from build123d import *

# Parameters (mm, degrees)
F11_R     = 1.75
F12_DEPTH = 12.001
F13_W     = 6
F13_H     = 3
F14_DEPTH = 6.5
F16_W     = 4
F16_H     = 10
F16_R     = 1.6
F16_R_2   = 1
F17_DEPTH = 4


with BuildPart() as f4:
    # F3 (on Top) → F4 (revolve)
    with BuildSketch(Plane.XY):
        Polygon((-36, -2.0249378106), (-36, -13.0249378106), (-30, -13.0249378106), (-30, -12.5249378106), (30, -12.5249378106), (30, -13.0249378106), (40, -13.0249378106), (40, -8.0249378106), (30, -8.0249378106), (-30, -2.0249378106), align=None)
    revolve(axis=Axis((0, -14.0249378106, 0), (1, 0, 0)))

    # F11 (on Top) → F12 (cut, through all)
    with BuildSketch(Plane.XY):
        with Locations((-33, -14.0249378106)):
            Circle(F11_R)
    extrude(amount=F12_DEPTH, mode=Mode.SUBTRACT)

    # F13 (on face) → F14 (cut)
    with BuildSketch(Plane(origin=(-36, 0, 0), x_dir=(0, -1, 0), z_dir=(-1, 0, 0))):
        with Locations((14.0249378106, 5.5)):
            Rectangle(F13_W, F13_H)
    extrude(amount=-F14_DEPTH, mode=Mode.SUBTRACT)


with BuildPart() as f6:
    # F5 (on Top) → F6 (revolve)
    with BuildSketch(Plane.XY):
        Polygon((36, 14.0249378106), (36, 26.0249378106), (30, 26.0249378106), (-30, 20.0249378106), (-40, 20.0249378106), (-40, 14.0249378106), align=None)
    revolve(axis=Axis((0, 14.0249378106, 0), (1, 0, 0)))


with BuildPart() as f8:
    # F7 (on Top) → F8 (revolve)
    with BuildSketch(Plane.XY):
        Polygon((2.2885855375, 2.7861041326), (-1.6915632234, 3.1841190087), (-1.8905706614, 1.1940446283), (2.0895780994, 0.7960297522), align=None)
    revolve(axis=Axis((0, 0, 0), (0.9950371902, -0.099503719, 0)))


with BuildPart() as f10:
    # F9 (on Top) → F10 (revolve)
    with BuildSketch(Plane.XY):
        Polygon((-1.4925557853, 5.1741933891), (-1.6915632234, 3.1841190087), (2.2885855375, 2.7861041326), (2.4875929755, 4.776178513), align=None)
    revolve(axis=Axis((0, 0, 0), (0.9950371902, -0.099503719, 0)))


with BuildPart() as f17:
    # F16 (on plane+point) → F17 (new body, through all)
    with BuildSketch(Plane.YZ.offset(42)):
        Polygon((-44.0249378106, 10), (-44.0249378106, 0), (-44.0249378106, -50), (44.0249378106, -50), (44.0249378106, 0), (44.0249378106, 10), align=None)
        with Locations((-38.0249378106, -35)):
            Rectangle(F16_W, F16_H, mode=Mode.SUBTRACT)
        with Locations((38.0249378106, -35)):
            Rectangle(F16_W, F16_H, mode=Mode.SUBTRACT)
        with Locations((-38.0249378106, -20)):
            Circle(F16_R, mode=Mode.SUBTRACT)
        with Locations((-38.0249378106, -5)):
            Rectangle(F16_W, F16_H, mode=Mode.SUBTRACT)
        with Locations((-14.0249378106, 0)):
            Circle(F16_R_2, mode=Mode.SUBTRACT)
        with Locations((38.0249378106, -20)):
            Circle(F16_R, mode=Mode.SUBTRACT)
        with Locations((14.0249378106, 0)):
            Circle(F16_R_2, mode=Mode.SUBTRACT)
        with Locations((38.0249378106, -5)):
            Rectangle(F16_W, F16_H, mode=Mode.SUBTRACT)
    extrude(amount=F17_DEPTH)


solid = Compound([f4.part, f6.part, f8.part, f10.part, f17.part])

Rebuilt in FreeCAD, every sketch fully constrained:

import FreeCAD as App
import Part
import Sketcher

V = App.Vector


def add_polygon(sketch, points):
    """Adds a closed chain of lines whose ends are joined by coincident constraints."""
    first, n = sketch.GeometryCount, len(points)
    for a, b in zip(points, points[1:] + points[:1]):
        sketch.addGeometry(Part.LineSegment(App.Vector(*a, 0), App.Vector(*b, 0)), False)
    for i in range(n):
        sketch.addConstraint(Sketcher.Constraint("Coincident", first + i, 2, first + (i + 1) % n, 1))

doc = App.newDocument("Part")
body = doc.addObject("PartDesign::Body", "Body")

sketch1 = body.newObject("Sketcher::SketchObject", "Sketch")
sketch1.AttachmentSupport = (doc.getObject("XY_Plane"), [""])
sketch1.MapMode = "FlatFace"
add_polygon(sketch1, [(-36, -2), (-36, -13), (-30, -13), (-30, -12.5), (30, -12.5), (30, -13), (40, -13), (40, -8), (30, -8), (-30, -2)])
sketch1.addGeometry(Part.LineSegment(V(-36, -14, 0), V(40, -14, 0)), True)
sketch1.addConstraint([
    Sketcher.Constraint("Vertical", 0),
    Sketcher.Constraint("Horizontal", 1),
    Sketcher.Constraint("Vertical", 2),
    Sketcher.Constraint("Horizontal", 3),
    Sketcher.Constraint("Vertical", 4),
    Sketcher.Constraint("Horizontal", 5),
    Sketcher.Constraint("Vertical", 6),
    Sketcher.Constraint("Horizontal", 7),
    Sketcher.Constraint("Horizontal", 9),
    Sketcher.Constraint("Horizontal", 10),
    Sketcher.Constraint("Symmetric", 1, 2, 4, 2, -2),
    Sketcher.Constraint("Vertical", 4, 2, 7, 2),
    Sketcher.Constraint("Vertical", 2, 2, 8, 2),
    Sketcher.Constraint("Vertical", 9, 2, 10, 1),
    Sketcher.Constraint("Vertical", 6, 2, 10, 2),
    Sketcher.Constraint("DistanceX", 1, 1, 1, 2, 6.0),
    Sketcher.Constraint("DistanceX", 3, 1, 3, 2, 60.0),
    Sketcher.Constraint("DistanceX", 5, 1, 5, 2, 10.0),
    Sketcher.Constraint("DistanceY", 0, 2, 0, 1, 11.0),
    Sketcher.Constraint("DistanceY", 6, 1, 6, 2, 5.0),
    Sketcher.Constraint("DistanceY", 2, 1, 2, 2, 0.5),
    Sketcher.Constraint("DistanceY", 10, 1, 0, 2, 1.0),
    Sketcher.Constraint("DistanceY", 0, 2, -1, 1, 13.024938),
])
revolution = body.newObject("PartDesign::Revolution", "Revolution")
revolution.Profile = sketch1
revolution.ReferenceAxis = (sketch1, ["Axis0"])
revolution.Angle = 360

sketch2 = body.newObject("Sketcher::SketchObject", "Sketch001")
sketch2.AttachmentSupport = (doc.getObject("XY_Plane"), [""])
sketch2.MapMode = "FlatFace"
sketch2.addGeometry(Part.Circle(V(-33, -14, 0), V(0, 0, 1), 1.8), False)
sketch2.addConstraint([
    Sketcher.Constraint("Diameter", 0, 3.5),
    Sketcher.Constraint("DistanceX", 0, 3, -1, 1, 33.0),
    Sketcher.Constraint("DistanceY", 0, 3, -1, 1, 14.024938),
])
pocket1 = body.newObject("PartDesign::Pocket", "Pocket")
pocket1.Profile = sketch2
pocket1.Type = "ThroughAll"
pocket1.Reversed = True

sketch3 = body.newObject("Sketcher::SketchObject", "Sketch002")
sketch3.AttachmentSupport = (doc.getObject("YZ_Plane"), [""])
sketch3.MapMode = "FlatFace"
sketch3.AttachmentOffset = App.Placement(V(0, 0, -36), App.Rotation())
add_polygon(sketch3, [(-11, 7), (-11, 4), (-17, 4), (-17, 7)])
sketch3.addConstraint([
    Sketcher.Constraint("Vertical", 0),
    Sketcher.Constraint("Horizontal", 1),
    Sketcher.Constraint("Vertical", 2),
    Sketcher.Constraint("Horizontal", 3),
    Sketcher.Constraint("DistanceX", 1, 2, 1, 1, 6.0),
    Sketcher.Constraint("DistanceY", 0, 2, 0, 1, 3.0),
    Sketcher.Constraint("DistanceY", -1, 1, 0, 2, 4.0),
    Sketcher.Constraint("DistanceX", 0, 2, -1, 1, 11.024938),
])
pocket2 = body.newObject("PartDesign::Pocket", "Pocket001")
pocket2.Profile = sketch3
pocket2.Length = 6.5
pocket2.Reversed = True
body2 = doc.addObject("PartDesign::Body", "Body001")

sketch4 = body2.newObject("Sketcher::SketchObject", "Sketch003")
sketch4.AttachmentSupport = (doc.getObject("XY_Plane001"), [""])
sketch4.MapMode = "FlatFace"
add_polygon(sketch4, [(36, 14), (36, 26), (30, 26), (-30, 20), (-40, 20), (-40, 14)])
sketch4.addGeometry(Part.LineSegment(V(-40, 14, 0), V(36, 14, 0)), True)
sketch4.addConstraint([
    Sketcher.Constraint("Vertical", 0),
    Sketcher.Constraint("Horizontal", 1),
    Sketcher.Constraint("Horizontal", 3),
    Sketcher.Constraint("Vertical", 4),
    Sketcher.Constraint("Horizontal", 5),
    Sketcher.Constraint("Horizontal", 6),
    Sketcher.Constraint("Coincident", 6, 1, 4, 2),
    Sketcher.Constraint("Vertical", 0, 2, 6, 2),
    Sketcher.Constraint("Equal", 1, 4),
    Sketcher.Constraint("DistanceX", 1, 2, 1, 1, 6.0),
    Sketcher.Constraint("DistanceX", 3, 2, 3, 1, 10.0),
    Sketcher.Constraint("DistanceX", 5, 1, 5, 2, 76.0),
    Sketcher.Constraint("DistanceY", 0, 1, 0, 2, 12.0),
    Sketcher.Constraint("DistanceX", -1, 1, 0, 2, 36.0),
    Sketcher.Constraint("DistanceY", -1, 1, 0, 2, 26.024938),
])
revolution2 = body2.newObject("PartDesign::Revolution", "Revolution001")
revolution2.Profile = sketch4
revolution2.ReferenceAxis = (sketch4, ["Axis0"])
revolution2.Angle = 360
body3 = doc.addObject("PartDesign::Body", "Body002")

sketch5 = body3.newObject("Sketcher::SketchObject", "Sketch004")
sketch5.AttachmentSupport = (doc.getObject("XY_Plane002"), [""])
sketch5.MapMode = "FlatFace"
add_polygon(sketch5, [(2.3, 2.8), (-1.7, 3.2), (-1.9, 1.2), (2.1, 0.8)])
sketch5.addGeometry(Part.LineSegment(V(-2, 0.2, 0), V(2, -0.2, 0)), True)
sketch5.addConstraint([
    Sketcher.Constraint("Symmetric", 4, 1, 4, 2, -1, 1),
    Sketcher.Constraint("Perpendicular", 0, 1),
    Sketcher.Constraint("Perpendicular", 1, 2),
    Sketcher.Constraint("Perpendicular", 2, 3),
    Sketcher.Constraint("Perpendicular", 3, 4),
    Sketcher.Constraint("Equal", 2, 4),
    Sketcher.Constraint("Distance", 0, 4.0),
    Sketcher.Constraint("Distance", 1, 2.0),
    Sketcher.Constraint("DistanceY", -1, 1, 0, 2, 3.184119),
    Sketcher.Constraint("DistanceX", 1, 2, -1, 1, 1.890571),
    Sketcher.Constraint("DistanceX", -1, 1, 2, 2, 2.089578),
])
revolution3 = body3.newObject("PartDesign::Revolution", "Revolution002")
revolution3.Profile = sketch5
revolution3.ReferenceAxis = (sketch5, ["Axis0"])
revolution3.Angle = 360
body4 = doc.addObject("PartDesign::Body", "Body003")

sketch6 = body4.newObject("Sketcher::SketchObject", "Sketch005")
sketch6.AttachmentSupport = (doc.getObject("XY_Plane003"), [""])
sketch6.MapMode = "FlatFace"
add_polygon(sketch6, [(-1.5, 5.2), (-1.7, 3.2), (2.3, 2.8), (2.5, 4.8)])
sketch6.addGeometry(Part.LineSegment(V(-2, 0.2, 0), V(2, -0.2, 0)), True)
sketch6.addConstraint([
    Sketcher.Constraint("Symmetric", 4, 1, 4, 2, -1, 1),
    Sketcher.Constraint("Perpendicular", 0, 1),
    Sketcher.Constraint("Perpendicular", 1, 2),
    Sketcher.Constraint("Perpendicular", 2, 3),
    Sketcher.Constraint("Parallel", 3, 4),
    Sketcher.Constraint("Equal", 3, 4),
    Sketcher.Constraint("Distance", 0, 2.0),
    Sketcher.Constraint("Distance", 1, 4.0),
    Sketcher.Constraint("DistanceY", 4, 2, 3, 2, 5.373201),
    Sketcher.Constraint("DistanceY", -1, 1, 0, 2, 3.184119),
    Sketcher.Constraint("DistanceX", 4, 1, 0, 2, 0.298511),
])
revolution4 = body4.newObject("PartDesign::Revolution", "Revolution003")
revolution4.Profile = sketch6
revolution4.ReferenceAxis = (sketch6, ["Axis0"])
revolution4.Angle = 360
body5 = doc.addObject("PartDesign::Body", "Body004")

sketch7 = body5.newObject("Sketcher::SketchObject", "Sketch006")
sketch7.AttachmentSupport = (doc.getObject("YZ_Plane004"), [""])
sketch7.MapMode = "FlatFace"
sketch7.AttachmentOffset = App.Placement(V(0, 0, 42), App.Rotation())
add_polygon(sketch7, [(-44, 10), (-44, -50), (44, -50), (44, 10)])
add_polygon(sketch7, [(-36, -40), (-40, -40), (-40, -30), (-36, -30)])
sketch7.addGeometry(Part.Circle(V(-38, -20, 0), V(0, 0, 1), 1.6), False)
add_polygon(sketch7, [(40, -40), (36, -40), (36, -30), (40, -30)])
sketch7.addGeometry(Part.Circle(V(38, -20, 0), V(0, 0, 1), 1.6), False)
add_polygon(sketch7, [(-36, -10), (-40, -10), (-40, 0), (-36, 0)])
sketch7.addGeometry(Part.Circle(V(-14, 0, 0), V(0, 0, 1), 1), False)
sketch7.addGeometry(Part.Circle(V(14, 0, 0), V(0, 0, 1), 1), False)
add_polygon(sketch7, [(40, -10), (36, -10), (36, 0), (40, 0)])
sketch7.addConstraint([
    Sketcher.Constraint("Vertical", 0),
    Sketcher.Constraint("Horizontal", 1),
    Sketcher.Constraint("Vertical", 2),
    Sketcher.Constraint("Horizontal", 3),
    Sketcher.Constraint("Horizontal", 4),
    Sketcher.Constraint("Vertical", 5),
    Sketcher.Constraint("Horizontal", 6),
    Sketcher.Constraint("Vertical", 7),
    Sketcher.Constraint("Horizontal", 9),
    Sketcher.Constraint("Vertical", 10),
    Sketcher.Constraint("Horizontal", 11),
    Sketcher.Constraint("Vertical", 12),
    Sketcher.Constraint("Horizontal", 14),
    Sketcher.Constraint("Vertical", 15),
    Sketcher.Constraint("Horizontal", 16),
    Sketcher.Constraint("Vertical", 17),
    Sketcher.Constraint("Horizontal", 20),
    Sketcher.Constraint("Vertical", 21),
    Sketcher.Constraint("Horizontal", 22),
    Sketcher.Constraint("Vertical", 23),
    Sketcher.Constraint("Equal", 8, 13),
    Sketcher.Constraint("Equal", 18, 19),
    Sketcher.Constraint("Symmetric", 18, 3, 19, 3, -1, 1),
    Sketcher.Constraint("Symmetric", 16, 2, 21, 2, -1, 1),
    Sketcher.Constraint("Symmetric", 8, 3, 13, 3, -2),
    Sketcher.Constraint("Symmetric", 7, 2, 9, 2, -2),
    Sketcher.Constraint("Symmetric", 5, 2, 11, 2, -2),
    Sketcher.Constraint("Symmetric", 15, 2, 22, 2, -2),
    Sketcher.Constraint("PointOnObject", 18, 3, -1),
    Sketcher.Constraint("Horizontal", 17, 2, 20, 2),
    Sketcher.Constraint("Vertical", 5, 2, 14, 2),
    Sketcher.Constraint("Vertical", 7, 2, 16, 2),
    Sketcher.Constraint("Equal", 12, 15),
    Sketcher.Constraint("Diameter", 18, 2.0),
    Sketcher.Constraint("Diameter", 8, 3.2),
    Sketcher.Constraint("DistanceX", 4, 2, 4, 1, 4.0),
    Sketcher.Constraint("DistanceY", 0, 2, 0, 1, 60.0),
    Sketcher.Constraint("DistanceY", 5, 1, 5, 2, 10.0),
    Sketcher.Constraint("DistanceY", 8, 3, -1, 1, 20.0),
    Sketcher.Constraint("DistanceY", 0, 2, -1, 1, 50.0),
    Sketcher.Constraint("DistanceY", 4, 2, -1, 1, 40.0),
    Sketcher.Constraint("DistanceX", 8, 3, 18, 3, 24.0),
    Sketcher.Constraint("DistanceX", 0, 2, 8, 3, 6.0),
    Sketcher.Constraint("DistanceX", 13, 3, 1, 2, 6.0),
    Sketcher.Constraint("DistanceX", 0, 2, 4, 2, 4.0),
    Sketcher.Constraint("DistanceX", 1, 1, 1, 2, 88.049876),
])
pad1 = body5.newObject("PartDesign::Pad", "Pad")
pad1.Profile = sketch7
pad1.Length = 4

doc.recompute()
